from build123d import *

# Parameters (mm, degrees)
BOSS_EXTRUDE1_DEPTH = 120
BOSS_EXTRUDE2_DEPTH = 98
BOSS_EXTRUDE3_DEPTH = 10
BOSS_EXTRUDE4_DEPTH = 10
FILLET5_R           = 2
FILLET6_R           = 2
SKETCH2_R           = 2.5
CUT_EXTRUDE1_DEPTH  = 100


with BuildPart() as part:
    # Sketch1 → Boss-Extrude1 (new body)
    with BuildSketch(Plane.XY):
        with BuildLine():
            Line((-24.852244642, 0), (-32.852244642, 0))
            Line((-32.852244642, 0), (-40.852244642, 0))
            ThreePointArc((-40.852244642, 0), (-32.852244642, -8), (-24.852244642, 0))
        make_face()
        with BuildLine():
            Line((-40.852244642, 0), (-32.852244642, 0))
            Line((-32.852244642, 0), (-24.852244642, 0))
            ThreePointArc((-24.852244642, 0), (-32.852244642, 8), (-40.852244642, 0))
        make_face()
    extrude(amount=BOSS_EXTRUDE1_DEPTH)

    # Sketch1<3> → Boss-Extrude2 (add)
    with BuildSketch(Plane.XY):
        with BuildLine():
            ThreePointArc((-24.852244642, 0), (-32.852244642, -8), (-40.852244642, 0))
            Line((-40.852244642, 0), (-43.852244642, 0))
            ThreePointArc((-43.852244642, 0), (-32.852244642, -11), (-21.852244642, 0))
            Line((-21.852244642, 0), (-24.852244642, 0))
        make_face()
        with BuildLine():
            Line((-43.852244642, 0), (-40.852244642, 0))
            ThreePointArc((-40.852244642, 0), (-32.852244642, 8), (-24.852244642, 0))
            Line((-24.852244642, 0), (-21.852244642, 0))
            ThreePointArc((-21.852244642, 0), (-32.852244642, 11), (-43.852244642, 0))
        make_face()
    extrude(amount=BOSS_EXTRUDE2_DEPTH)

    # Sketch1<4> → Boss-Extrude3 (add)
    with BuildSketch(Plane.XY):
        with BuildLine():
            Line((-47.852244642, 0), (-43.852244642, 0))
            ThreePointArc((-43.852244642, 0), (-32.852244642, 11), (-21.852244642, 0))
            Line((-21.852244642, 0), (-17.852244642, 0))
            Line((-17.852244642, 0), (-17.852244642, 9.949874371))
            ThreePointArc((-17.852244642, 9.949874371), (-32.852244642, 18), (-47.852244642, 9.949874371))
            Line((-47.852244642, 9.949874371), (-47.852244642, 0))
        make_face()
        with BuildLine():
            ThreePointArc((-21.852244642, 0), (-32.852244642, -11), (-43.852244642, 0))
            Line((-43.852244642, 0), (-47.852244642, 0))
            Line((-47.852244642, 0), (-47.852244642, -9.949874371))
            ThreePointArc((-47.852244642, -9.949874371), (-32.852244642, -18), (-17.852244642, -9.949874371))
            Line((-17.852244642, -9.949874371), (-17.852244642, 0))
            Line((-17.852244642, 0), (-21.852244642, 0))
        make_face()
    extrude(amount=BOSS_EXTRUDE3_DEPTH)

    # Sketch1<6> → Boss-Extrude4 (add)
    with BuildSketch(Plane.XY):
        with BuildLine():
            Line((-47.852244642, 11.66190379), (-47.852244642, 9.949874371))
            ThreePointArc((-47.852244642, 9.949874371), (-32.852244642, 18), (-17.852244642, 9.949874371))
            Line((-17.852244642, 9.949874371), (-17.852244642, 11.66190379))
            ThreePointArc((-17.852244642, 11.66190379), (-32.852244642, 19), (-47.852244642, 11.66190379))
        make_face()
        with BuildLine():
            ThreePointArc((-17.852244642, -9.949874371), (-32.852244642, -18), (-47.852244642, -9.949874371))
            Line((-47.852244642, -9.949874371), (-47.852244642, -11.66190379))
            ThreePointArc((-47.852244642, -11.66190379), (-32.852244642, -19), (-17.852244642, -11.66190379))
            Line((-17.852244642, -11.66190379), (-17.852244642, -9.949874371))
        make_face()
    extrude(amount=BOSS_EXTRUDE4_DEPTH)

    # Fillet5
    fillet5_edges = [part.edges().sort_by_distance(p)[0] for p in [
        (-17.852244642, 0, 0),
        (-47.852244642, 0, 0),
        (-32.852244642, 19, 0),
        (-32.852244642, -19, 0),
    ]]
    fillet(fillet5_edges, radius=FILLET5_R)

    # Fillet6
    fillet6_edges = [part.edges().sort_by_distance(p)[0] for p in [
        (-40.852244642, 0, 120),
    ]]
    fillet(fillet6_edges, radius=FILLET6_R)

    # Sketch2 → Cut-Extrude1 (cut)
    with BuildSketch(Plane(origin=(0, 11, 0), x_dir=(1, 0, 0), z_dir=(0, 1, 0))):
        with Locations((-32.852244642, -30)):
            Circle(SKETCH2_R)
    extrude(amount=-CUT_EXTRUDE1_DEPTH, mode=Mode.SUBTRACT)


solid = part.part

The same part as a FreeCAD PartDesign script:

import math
import FreeCAD as App
import Part
import Sketcher

V = App.Vector
Q = App.Units.Quantity


def edges_at(feature, points):
    """Names of the edges that pass closest to the given points."""
    edges = feature.Shape.Edges
    near = lambda p: min(range(len(edges)), key=lambda i: edges[i].distToShape(Part.Vertex(*p))[0])
    return sorted({f"Edge{near(p) + 1}" for p in points})

doc = App.newDocument("Part")
body = doc.addObject("PartDesign::Body", "Body")

# Sketch on XY plane
sketch1 = doc.addObject("Sketcher::SketchObject", "Sketch")
body.addObject(sketch1)
sketch1.AttachmentSupport = (doc.XY_Plane, [""])
sketch1.MapMode = "FlatFace"
sketch1.addGeometry(Part.Circle(V(-33, 0, 0), V(0, 0, 1), 8), False)
sketch1.addConstraint(Sketcher.Constraint("PointOnObject", 0, 3, -1))
sketch1.addConstraint(Sketcher.Constraint("Diameter", 0, Q("16 mm")))
sketch1.addConstraint(Sketcher.Constraint("DistanceX", 0, 3, -1, 1, Q("32.852245 mm")))
pad1 = doc.addObject("PartDesign::Pad", "Pad")
body.addObject(pad1)
pad1.Profile = sketch1
pad1.Length = 120

# Sketch on XY plane
sketch2 = doc.addObject("Sketcher::SketchObject", "Sketch001")
body.addObject(sketch2)
sketch2.AttachmentSupport = (doc.XY_Plane, [""])
sketch2.MapMode = "FlatFace"
sketch2.addGeometry(Part.Circle(V(-33, 0, 0), V(0, 0, 1), 11), False)
sketch2.addGeometry(Part.Circle(V(-33, 0, 0), V(0, 0, 1), 8), False)
sketch2.addConstraint(Sketcher.Constraint("Coincident", 1, 3, 0, 3))
sketch2.addConstraint(Sketcher.Constraint("PointOnObject", 0, 3, -1))
sketch2.addConstraint(Sketcher.Constraint("Diameter", 0, Q("22 mm")))
sketch2.addConstraint(Sketcher.Constraint("Diameter", 1, Q("16 mm")))
sketch2.addConstraint(Sketcher.Constraint("DistanceX", 0, 3, -1, 1, Q("32.852245 mm")))
pad2 = doc.addObject("PartDesign::Pad", "Pad001")
body.addObject(pad2)
pad2.Profile = sketch2
pad2.Length = 98

# Sketch on XY plane
sketch3 = doc.addObject("Sketcher::SketchObject", "Sketch002")
body.addObject(sketch3)
sketch3.AttachmentSupport = (doc.XY_Plane, [""])
sketch3.MapMode = "FlatFace"
sketch3.addGeometry(Part.ArcOfCircle(Part.Circle(V(-33, 0, 0), V(0, 0, 1), 18), math.radians(34), math.radians(146)), False)
sketch3.addGeometry(Part.LineSegment(V(-48, 10, 0), V(-48, -10, 0)), False)
sketch3.addGeometry(Part.ArcOfCircle(Part.Circle(V(-33, 0, 0), V(0, 0, 1), 18), math.radians(-146), math.radians(-34)), False)
sketch3.addGeometry(Part.LineSegment(V(-18, -10, 0), V(-18, 10, 0)), False)
sketch3.addGeometry(Part.Circle(V(-33, 0, 0), V(0, 0, 1), 11), False)
sketch3.addConstraint(Sketcher.Constraint("Coincident", 0, 2, 1, 1))
sketch3.addConstraint(Sketcher.Constraint("Coincident", 1, 2, 2, 1))
sketch3.addConstraint(Sketcher.Constraint("Coincident", 2, 2, 3, 1))
sketch3.addConstraint(Sketcher.Constraint("Coincident", 3, 2, 0, 1))
sketch3.addConstraint(Sketcher.Constraint("Vertical", 1))
sketch3.addConstraint(Sketcher.Constraint("Vertical", 3))
sketch3.addConstraint(Sketcher.Constraint("Coincident", 2, 3, 0, 3))
sketch3.addConstraint(Sketcher.Constraint("Coincident", 4, 3, 0, 3))
sketch3.addConstraint(Sketcher.Constraint("Equal", 0, 2))
sketch3.addConstraint(Sketcher.Constraint("PointOnObject", 0, 3, -1))
sketch3.addConstraint(Sketcher.Constraint("Horizontal", 1, 2, 2, 2))
sketch3.addConstraint(Sketcher.Constraint("Diameter", 4, Q("22 mm")))
sketch3.addConstraint(Sketcher.Constraint("Radius", 0, Q("18 mm")))
sketch3.addConstraint(Sketcher.Constraint("DistanceX", 0, 2, 0, 3, Q("15 mm")))
sketch3.addConstraint(Sketcher.Constraint("DistanceX", 0, 3, -1, 1, Q("32.852245 mm")))
pad3 = doc.addObject("PartDesign::Pad", "Pad002")
body.addObject(pad3)
pad3.Profile = sketch3
pad3.Length = 10

# Sketch on XY plane
sketch4 = doc.addObject("Sketcher::SketchObject", "Sketch003")
body.addObject(sketch4)
sketch4.AttachmentSupport = (doc.XY_Plane, [""])
sketch4.MapMode = "FlatFace"
sketch4.addGeometry(Part.LineSegment(V(-47.9, 11.7, 0), V(-47.9, 9.9, 0)), False)
sketch4.addGeometry(Part.ArcOfCircle(Part.Circle(V(-32.9, 0, 0), V(0, 0, 1), 18), math.radians(34), math.radians(146)), False)
sketch4.addGeometry(Part.LineSegment(V(-17.9, 9.9, 0), V(-17.9, 11.7, 0)), False)
sketch4.addGeometry(Part.ArcOfCircle(Part.Circle(V(-32.9, 0, 0), V(0, 0, 1), 19), math.radians(38), math.radians(142)), False)
sketch4.addGeometry(Part.ArcOfCircle(Part.Circle(V(-32.9, 0, 0), V(0, 0, 1), 18), math.radians(-146), math.radians(-34)), False)
sketch4.addGeometry(Part.LineSegment(V(-47.9, -9.9, 0), V(-47.9, -11.7, 0)), False)
sketch4.addGeometry(Part.ArcOfCircle(Part.Circle(V(-32.9, 0, 0), V(0, 0, 1), 19), math.radians(-142), math.radians(-38)), False)
sketch4.addGeometry(Part.LineSegment(V(-17.9, -11.7, 0), V(-17.9, -9.9, 0)), False)
sketch4.addConstraint(Sketcher.Constraint("Coincident", 0, 2, 1, 2))
sketch4.addConstraint(Sketcher.Constraint("Coincident", 1, 1, 2, 1))
sketch4.addConstraint(Sketcher.Constraint("Coincident", 2, 2, 3, 1))
sketch4.addConstraint(Sketcher.Constraint("Coincident", 3, 2, 0, 1))
sketch4.addConstraint(Sketcher.Constraint("Coincident", 4, 1, 5, 1))
sketch4.addConstraint(Sketcher.Constraint("Coincident", 5, 2, 6, 1))
sketch4.addConstraint(Sketcher.Constraint("Coincident", 6, 2, 7, 1))
sketch4.addConstraint(Sketcher.Constraint("Coincident", 7, 2, 4, 2))
sketch4.addConstraint(Sketcher.Constraint("Vertical", 0))
sketch4.addConstraint(Sketcher.Constraint("Vertical", 2))
sketch4.addConstraint(Sketcher.Constraint("Vertical", 5))
sketch4.addConstraint(Sketcher.Constraint("Vertical", 7))
sketch4.addConstraint(Sketcher.Constraint("Coincident", 3, 3, 1, 3))
sketch4.addConstraint(Sketcher.Constraint("Coincident", 4, 3, 1, 3))
sketch4.addConstraint(Sketcher.Constraint("Coincident", 6, 3, 1, 3))
sketch4.addConstraint(Sketcher.Constraint("Equal", 1, 4))
sketch4.addConstraint(Sketcher.Constraint("Equal", 3, 6))
sketch4.addConstraint(Sketcher.Constraint("Symmetric", 0, 2, 4, 1, -1))
sketch4.addConstraint(Sketcher.Constraint("Horizontal", 0, 2, 1, 1))
sketch4.addConstraint(Sketcher.Constraint("Horizontal", 5, 2, 6, 2))
sketch4.addConstraint(Sketcher.Constraint("Radius", 1, Q("18 mm")))
sketch4.addConstraint(Sketcher.Constraint("Radius", 3, Q("19 mm")))
sketch4.addConstraint(Sketcher.Constraint("DistanceX", 0, 2, 1, 3, Q("15 mm")))
sketch4.addConstraint(Sketcher.Constraint("DistanceX", 1, 3, -1, 1, Q("32.852245 mm")))
pad4 = doc.addObject("PartDesign::Pad", "Pad003")
body.addObject(pad4)
pad4.Profile = sketch4
pad4.Length = 10
doc.recompute()

fillet = doc.addObject("PartDesign::Fillet", "Fillet")
body.addObject(fillet)
fillet.Base = (pad4, edges_at(pad4, [
    (-17.852, 0, 0),
    (-47.852, 0, 0),
    (-32.852, 19, 0),
    (-32.852, -19, 0),
]))
fillet.Radius = 2
doc.recompute()

fillet2 = doc.addObject("PartDesign::Fillet", "Fillet001")
body.addObject(fillet2)
fillet2.Base = (fillet, edges_at(fillet, [(-40.852, 0, 120)]))
fillet2.Radius = 2

# Sketch on XZ plane
sketch5 = doc.addObject("Sketcher::SketchObject", "Sketch004")
body.addObject(sketch5)
sketch5.AttachmentSupport = (doc.XZ_Plane, [""])
sketch5.MapMode = "FlatFace"
sketch5.AttachmentOffset = App.Placement(V(0, 0, -11), App.Rotation())
sketch5.addGeometry(Part.Circle(V(-32.9, 30, 0), V(0, 0, 1), 2.5), False)
sketch5.addConstraint(Sketcher.Constraint("Diameter", 0, Q("5 mm")))
sketch5.addConstraint(Sketcher.Constraint("DistanceY", -1, 1, 0, 3, Q("30 mm")))
sketch5.addConstraint(Sketcher.Constraint("DistanceX", 0, 3, -1, 1, Q("32.852245 mm")))
pocket1 = doc.addObject("PartDesign::Pocket", "Pocket")
body.addObject(pocket1)
pocket1.Profile = sketch5
pocket1.Length = 100
pocket1.Reversed = True

doc.recompute()
